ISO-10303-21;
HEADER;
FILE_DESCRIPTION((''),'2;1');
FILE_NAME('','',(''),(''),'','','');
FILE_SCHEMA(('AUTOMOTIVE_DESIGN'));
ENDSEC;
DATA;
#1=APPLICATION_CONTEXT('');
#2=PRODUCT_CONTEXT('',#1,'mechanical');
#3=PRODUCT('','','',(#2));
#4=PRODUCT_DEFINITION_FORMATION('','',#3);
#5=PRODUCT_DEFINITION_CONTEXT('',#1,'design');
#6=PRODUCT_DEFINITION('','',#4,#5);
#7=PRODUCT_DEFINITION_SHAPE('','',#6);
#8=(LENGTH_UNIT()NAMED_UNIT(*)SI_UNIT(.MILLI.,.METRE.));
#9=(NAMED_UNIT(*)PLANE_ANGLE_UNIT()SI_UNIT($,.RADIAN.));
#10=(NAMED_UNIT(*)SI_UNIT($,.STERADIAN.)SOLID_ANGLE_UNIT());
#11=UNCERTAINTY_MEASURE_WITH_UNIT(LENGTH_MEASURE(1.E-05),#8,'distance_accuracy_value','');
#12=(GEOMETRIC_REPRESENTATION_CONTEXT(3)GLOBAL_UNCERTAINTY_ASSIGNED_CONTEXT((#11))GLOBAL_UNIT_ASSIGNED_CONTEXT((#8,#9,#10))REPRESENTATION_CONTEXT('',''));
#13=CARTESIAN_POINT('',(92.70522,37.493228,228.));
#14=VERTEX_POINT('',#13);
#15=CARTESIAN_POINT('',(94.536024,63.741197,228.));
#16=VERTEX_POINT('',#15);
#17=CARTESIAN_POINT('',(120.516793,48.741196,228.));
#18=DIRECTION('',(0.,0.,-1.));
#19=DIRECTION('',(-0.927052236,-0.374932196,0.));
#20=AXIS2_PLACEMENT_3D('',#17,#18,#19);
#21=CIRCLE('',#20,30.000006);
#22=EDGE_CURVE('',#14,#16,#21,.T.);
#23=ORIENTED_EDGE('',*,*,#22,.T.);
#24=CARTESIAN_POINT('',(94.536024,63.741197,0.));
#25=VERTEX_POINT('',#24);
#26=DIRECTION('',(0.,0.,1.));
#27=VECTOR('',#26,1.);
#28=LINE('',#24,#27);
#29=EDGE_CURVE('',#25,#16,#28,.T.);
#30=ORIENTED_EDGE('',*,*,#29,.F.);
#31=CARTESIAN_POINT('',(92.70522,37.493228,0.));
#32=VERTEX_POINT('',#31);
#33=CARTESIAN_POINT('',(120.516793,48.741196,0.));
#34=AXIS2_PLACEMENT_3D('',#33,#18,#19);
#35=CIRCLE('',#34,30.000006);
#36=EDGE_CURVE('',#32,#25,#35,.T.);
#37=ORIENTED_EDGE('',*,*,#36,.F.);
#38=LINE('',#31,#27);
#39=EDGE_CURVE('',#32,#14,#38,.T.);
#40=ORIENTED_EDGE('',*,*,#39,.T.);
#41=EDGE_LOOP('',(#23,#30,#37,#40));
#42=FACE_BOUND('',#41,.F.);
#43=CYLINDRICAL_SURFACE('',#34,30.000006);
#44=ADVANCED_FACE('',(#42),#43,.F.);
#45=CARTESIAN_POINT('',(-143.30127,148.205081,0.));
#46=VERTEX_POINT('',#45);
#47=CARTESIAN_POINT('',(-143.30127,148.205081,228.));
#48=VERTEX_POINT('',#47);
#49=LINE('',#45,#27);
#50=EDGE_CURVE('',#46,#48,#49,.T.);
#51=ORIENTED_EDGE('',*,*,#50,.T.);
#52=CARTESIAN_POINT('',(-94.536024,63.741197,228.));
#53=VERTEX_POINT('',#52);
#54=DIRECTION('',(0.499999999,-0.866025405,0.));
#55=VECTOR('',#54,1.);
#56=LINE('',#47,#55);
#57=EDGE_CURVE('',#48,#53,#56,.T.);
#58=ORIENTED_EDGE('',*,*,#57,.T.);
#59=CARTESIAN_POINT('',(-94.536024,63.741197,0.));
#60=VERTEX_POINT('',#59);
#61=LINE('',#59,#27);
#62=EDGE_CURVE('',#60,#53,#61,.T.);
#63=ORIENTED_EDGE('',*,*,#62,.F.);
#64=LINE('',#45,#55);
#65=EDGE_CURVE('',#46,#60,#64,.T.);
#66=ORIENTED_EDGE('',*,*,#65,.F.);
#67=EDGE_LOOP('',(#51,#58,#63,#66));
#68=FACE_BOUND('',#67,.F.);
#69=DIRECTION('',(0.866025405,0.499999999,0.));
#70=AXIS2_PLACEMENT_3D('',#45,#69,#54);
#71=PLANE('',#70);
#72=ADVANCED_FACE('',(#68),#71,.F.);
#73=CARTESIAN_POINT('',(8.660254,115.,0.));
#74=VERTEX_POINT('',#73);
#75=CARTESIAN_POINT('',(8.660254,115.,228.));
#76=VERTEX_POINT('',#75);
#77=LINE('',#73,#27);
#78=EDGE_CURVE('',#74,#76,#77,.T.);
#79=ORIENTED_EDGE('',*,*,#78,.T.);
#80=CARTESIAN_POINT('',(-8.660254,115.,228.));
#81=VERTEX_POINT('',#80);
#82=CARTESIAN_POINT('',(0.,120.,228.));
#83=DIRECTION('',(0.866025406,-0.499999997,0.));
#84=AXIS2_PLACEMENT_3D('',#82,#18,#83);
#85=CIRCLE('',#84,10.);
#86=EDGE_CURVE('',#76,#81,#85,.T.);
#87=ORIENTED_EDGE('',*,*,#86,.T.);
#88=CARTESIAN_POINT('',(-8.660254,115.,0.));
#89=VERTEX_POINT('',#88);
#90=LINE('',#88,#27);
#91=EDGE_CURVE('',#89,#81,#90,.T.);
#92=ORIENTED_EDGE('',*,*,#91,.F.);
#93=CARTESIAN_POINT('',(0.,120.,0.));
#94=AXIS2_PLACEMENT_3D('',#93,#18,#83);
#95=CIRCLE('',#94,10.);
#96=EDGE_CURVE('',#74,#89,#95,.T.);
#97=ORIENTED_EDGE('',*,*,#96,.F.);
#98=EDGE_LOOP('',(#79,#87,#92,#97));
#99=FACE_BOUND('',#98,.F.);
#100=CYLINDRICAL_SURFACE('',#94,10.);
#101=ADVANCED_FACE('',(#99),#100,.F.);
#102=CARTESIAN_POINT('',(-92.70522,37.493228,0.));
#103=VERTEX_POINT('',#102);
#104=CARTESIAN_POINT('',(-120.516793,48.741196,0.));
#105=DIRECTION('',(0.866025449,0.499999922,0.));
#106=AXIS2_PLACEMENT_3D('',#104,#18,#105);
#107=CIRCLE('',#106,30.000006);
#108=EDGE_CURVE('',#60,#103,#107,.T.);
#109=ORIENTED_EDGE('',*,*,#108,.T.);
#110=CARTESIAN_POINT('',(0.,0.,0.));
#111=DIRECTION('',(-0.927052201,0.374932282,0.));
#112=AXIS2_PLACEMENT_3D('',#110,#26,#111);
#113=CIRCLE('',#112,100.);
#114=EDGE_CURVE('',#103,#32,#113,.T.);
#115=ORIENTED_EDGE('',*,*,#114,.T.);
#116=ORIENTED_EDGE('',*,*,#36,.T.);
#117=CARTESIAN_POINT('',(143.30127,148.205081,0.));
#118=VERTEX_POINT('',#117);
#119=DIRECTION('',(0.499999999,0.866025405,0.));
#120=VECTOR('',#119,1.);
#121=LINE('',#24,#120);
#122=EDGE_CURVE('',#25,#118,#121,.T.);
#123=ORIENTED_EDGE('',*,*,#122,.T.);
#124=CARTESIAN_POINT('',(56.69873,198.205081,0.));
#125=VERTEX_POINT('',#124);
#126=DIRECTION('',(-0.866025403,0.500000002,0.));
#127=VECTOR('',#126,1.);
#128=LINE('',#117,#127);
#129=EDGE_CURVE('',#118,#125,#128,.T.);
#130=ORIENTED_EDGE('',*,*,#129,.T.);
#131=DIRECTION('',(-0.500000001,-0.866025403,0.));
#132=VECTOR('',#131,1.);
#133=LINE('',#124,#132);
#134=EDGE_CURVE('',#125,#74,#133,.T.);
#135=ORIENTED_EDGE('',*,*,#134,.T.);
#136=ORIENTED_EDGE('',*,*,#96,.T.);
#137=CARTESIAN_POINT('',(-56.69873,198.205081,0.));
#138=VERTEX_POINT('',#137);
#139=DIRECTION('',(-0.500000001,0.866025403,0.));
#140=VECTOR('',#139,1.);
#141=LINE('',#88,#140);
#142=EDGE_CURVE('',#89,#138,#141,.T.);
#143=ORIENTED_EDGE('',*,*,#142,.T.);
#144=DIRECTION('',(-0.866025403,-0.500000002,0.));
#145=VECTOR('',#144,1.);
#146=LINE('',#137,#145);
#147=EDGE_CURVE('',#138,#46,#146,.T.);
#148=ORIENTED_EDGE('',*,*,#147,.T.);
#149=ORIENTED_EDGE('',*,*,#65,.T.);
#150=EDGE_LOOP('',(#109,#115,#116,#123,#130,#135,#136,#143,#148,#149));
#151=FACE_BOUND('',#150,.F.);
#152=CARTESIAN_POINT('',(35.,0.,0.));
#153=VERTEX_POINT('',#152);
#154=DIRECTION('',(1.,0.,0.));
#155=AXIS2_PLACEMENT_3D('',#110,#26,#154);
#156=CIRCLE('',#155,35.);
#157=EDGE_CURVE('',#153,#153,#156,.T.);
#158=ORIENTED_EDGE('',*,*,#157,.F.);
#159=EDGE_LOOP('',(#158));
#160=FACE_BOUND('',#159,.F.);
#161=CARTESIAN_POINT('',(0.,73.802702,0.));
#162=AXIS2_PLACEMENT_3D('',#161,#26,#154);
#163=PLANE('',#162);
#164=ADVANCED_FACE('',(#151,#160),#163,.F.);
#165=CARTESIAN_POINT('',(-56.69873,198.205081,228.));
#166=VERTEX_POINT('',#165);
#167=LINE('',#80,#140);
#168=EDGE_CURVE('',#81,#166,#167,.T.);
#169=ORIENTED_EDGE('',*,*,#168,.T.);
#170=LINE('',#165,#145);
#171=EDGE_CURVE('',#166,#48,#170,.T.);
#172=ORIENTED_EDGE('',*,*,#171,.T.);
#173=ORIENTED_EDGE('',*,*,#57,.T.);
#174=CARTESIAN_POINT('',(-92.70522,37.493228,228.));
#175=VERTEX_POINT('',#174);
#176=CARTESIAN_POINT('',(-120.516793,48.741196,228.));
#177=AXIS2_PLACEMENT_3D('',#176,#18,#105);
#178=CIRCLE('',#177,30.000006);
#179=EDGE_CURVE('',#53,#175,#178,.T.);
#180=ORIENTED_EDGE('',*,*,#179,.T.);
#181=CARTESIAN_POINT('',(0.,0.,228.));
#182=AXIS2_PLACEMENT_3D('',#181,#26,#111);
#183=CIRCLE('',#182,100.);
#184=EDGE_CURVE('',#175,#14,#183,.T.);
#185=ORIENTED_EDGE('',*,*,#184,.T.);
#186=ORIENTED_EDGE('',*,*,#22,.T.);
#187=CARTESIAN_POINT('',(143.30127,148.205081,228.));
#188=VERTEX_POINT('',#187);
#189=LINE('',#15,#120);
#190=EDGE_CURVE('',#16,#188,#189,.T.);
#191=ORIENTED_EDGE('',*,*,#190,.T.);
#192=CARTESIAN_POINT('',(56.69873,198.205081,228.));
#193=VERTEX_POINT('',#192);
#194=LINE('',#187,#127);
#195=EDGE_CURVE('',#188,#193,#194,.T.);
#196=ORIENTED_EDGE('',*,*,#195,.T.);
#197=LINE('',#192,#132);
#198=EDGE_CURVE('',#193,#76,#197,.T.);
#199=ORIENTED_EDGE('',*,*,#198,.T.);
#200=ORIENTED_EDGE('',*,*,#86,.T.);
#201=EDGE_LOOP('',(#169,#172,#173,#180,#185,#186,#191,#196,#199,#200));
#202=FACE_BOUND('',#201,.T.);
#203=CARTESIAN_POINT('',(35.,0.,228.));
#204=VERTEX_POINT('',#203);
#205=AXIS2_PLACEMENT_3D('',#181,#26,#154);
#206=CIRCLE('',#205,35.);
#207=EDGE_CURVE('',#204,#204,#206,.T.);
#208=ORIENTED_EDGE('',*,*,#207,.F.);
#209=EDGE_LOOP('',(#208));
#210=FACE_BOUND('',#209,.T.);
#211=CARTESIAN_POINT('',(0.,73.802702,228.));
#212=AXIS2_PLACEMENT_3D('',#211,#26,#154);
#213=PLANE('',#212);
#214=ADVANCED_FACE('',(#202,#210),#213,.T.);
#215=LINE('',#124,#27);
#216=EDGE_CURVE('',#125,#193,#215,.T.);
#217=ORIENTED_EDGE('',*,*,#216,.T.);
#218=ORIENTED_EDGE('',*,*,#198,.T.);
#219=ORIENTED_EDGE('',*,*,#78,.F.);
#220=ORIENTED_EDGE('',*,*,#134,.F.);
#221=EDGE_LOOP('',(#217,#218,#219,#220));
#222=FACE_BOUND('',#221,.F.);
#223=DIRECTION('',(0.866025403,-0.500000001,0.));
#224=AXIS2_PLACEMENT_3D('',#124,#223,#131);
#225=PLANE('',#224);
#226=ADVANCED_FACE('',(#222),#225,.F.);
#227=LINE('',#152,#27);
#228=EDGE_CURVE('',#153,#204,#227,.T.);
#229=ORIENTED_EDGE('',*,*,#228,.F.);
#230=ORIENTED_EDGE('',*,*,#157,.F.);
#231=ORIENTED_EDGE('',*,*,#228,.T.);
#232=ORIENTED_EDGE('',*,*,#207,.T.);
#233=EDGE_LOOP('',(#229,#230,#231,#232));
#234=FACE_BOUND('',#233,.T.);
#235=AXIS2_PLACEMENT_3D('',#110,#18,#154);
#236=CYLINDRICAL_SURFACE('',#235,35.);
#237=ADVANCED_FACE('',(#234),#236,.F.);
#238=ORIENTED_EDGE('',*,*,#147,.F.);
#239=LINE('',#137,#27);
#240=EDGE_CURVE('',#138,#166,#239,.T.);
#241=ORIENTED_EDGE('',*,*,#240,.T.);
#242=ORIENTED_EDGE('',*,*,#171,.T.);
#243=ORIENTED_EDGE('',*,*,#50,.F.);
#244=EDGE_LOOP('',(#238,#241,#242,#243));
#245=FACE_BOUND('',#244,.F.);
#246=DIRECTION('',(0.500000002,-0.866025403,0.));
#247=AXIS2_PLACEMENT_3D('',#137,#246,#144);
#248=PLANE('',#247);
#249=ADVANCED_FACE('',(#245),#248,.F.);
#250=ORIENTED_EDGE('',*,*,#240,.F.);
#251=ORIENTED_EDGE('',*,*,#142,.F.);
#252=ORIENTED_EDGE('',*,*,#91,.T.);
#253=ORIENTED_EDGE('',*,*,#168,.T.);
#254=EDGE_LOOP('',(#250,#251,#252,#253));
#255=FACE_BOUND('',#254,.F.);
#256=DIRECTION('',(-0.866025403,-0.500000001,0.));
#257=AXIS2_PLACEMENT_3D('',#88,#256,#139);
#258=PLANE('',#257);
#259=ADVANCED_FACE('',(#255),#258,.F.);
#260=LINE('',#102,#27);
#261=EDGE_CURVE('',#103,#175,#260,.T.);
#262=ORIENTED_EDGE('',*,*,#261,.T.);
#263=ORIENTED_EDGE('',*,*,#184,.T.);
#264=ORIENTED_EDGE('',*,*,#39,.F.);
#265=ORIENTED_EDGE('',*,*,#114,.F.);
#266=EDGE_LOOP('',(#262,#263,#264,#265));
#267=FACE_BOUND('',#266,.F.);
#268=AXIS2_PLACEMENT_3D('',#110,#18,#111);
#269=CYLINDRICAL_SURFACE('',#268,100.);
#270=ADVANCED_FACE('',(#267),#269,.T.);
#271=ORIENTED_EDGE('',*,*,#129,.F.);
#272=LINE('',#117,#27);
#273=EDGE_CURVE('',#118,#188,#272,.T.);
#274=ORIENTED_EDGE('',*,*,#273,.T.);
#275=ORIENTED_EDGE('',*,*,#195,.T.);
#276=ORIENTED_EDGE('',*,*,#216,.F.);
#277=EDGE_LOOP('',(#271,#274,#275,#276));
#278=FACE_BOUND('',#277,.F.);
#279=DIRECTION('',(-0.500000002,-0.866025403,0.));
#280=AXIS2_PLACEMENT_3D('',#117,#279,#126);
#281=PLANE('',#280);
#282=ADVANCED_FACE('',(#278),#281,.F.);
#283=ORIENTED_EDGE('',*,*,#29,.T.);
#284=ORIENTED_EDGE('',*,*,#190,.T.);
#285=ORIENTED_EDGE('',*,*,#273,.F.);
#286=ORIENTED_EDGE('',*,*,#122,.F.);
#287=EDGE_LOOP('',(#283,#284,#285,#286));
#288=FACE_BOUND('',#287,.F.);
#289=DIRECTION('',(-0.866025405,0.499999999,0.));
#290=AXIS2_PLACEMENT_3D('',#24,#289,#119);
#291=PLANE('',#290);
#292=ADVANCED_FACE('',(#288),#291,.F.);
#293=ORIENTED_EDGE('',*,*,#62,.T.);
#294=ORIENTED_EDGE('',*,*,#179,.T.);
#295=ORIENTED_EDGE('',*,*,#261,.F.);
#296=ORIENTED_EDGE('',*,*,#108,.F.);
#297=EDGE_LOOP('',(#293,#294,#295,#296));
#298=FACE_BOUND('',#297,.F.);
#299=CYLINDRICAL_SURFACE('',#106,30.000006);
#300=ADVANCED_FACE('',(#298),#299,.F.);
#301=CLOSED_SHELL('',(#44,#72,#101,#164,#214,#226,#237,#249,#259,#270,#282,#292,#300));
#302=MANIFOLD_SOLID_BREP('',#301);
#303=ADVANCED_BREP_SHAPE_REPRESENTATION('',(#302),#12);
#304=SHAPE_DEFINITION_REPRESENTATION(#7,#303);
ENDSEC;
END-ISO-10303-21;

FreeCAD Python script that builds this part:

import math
import FreeCAD as App
import Part
import Sketcher
from FreeCAD import Vector
Q = App.Units.Quantity

doc = App.newDocument("Part")
body = doc.addObject("PartDesign::Body", "Body")

# Sketch on XY plane
sketch1 = body.newObject("Sketcher::SketchObject", "Sketch")
sketch1.AttachmentSupport = (doc.getObject("XY_Plane"), [""])
sketch1.MapMode = "FlatFace"
sketch1.addGeometry(Part.ArcOfCircle(Part.Circle(Vector(0, 0, 0), Vector(0, 0, 1), 100), math.radians(158), math.radians(382)), False)
sketch1.addGeometry(Part.ArcOfCircle(Part.Circle(Vector(121, 49, 0), Vector(0, 0, 1), 30), math.radians(150), math.radians(202)), False)
sketch1.addGeometry(Part.LineSegment(Vector(95, 64, 0), Vector(143, 148, 0)), False)
sketch1.addGeometry(Part.LineSegment(Vector(143, 148, 0), Vector(57, 198, 0)), False)
sketch1.addGeometry(Part.LineSegment(Vector(57, 198, 0), Vector(9, 115, 0)), False)
sketch1.addGeometry(Part.ArcOfCircle(Part.Circle(Vector(0, 120, 0), Vector(0, 0, 1), 10), math.radians(-150), math.radians(-30)), False)
sketch1.addGeometry(Part.LineSegment(Vector(-9, 115, 0), Vector(-57, 198, 0)), False)
sketch1.addGeometry(Part.LineSegment(Vector(-57, 198, 0), Vector(-143, 148, 0)), False)
sketch1.addGeometry(Part.LineSegment(Vector(-143, 148, 0), Vector(-95, 64, 0)), False)
sketch1.addGeometry(Part.ArcOfCircle(Part.Circle(Vector(-121, 49, 0), Vector(0, 0, 1), 30), math.radians(-22), math.radians(30)), False)
sketch1.addGeometry(Part.Circle(Vector(0, 0, 0), Vector(0, 0, 1), 35), False)
sketch1.addConstraint(Sketcher.Constraint("Tangent", 0, 2, 1, 2))
sketch1.addConstraint(Sketcher.Constraint("Tangent", 1, 1, 2, 1))
sketch1.addConstraint(Sketcher.Constraint("Coincident", 2, 2, 3, 1))
sketch1.addConstraint(Sketcher.Constraint("Coincident", 3, 2, 4, 1))
sketch1.addConstraint(Sketcher.Constraint("Tangent", 4, 2, 5, 2))
sketch1.addConstraint(Sketcher.Constraint("Tangent", 5, 1, 6, 1))
sketch1.addConstraint(Sketcher.Constraint("Coincident", 6, 2, 7, 1))
sketch1.addConstraint(Sketcher.Constraint("Coincident", 7, 2, 8, 1))
sketch1.addConstraint(Sketcher.Constraint("Tangent", 8, 2, 9, 2))
sketch1.addConstraint(Sketcher.Constraint("Tangent", 9, 1, 0, 1))
sketch1.addConstraint(Sketcher.Constraint("Coincident", 0, 3, -1, 1))
sketch1.addConstraint(Sketcher.Constraint("Coincident", 10, 3, -1, 1))
sketch1.addConstraint(Sketcher.Constraint("Equal", 1, 9))
sketch1.addConstraint(Sketcher.Constraint("Symmetric", 4, 2, 5, 1, -2))
sketch1.addConstraint(Sketcher.Constraint("Symmetric", 2, 2, 7, 2, -2))
sketch1.addConstraint(Sketcher.Constraint("Perpendicular", 2, 3))
sketch1.addConstraint(Sketcher.Constraint("Perpendicular", 3, 4))
sketch1.addConstraint(Sketcher.Constraint("Perpendicular", 6, 7))
sketch1.addConstraint(Sketcher.Constraint("Perpendicular", 7, 8))
sketch1.addConstraint(Sketcher.Constraint("Diameter", 10, 70.0))
sketch1.addConstraint(Sketcher.Constraint("Radius", 0, 100.0))
sketch1.addConstraint(Sketcher.Constraint("Radius", 5, 10.0))
sketch1.addConstraint(Sketcher.Constraint("Angle", 2, Q("60 deg")))
sketch1.addConstraint(Sketcher.Constraint("Distance", 3, 100.0))
sketch1.addConstraint(Sketcher.Constraint("DistanceY", -1, 1, 5, 3, 120.0))
sketch1.addConstraint(Sketcher.Constraint("DistanceY", 1, 3, 1, 1, 15.000001))
sketch1.addConstraint(Sketcher.Constraint("Distance", 4, 96.076952))
pad1 = body.newObject("PartDesign::Pad", "Pad")
pad1.Profile = sketch1
pad1.Length = 228

doc.recompute()
